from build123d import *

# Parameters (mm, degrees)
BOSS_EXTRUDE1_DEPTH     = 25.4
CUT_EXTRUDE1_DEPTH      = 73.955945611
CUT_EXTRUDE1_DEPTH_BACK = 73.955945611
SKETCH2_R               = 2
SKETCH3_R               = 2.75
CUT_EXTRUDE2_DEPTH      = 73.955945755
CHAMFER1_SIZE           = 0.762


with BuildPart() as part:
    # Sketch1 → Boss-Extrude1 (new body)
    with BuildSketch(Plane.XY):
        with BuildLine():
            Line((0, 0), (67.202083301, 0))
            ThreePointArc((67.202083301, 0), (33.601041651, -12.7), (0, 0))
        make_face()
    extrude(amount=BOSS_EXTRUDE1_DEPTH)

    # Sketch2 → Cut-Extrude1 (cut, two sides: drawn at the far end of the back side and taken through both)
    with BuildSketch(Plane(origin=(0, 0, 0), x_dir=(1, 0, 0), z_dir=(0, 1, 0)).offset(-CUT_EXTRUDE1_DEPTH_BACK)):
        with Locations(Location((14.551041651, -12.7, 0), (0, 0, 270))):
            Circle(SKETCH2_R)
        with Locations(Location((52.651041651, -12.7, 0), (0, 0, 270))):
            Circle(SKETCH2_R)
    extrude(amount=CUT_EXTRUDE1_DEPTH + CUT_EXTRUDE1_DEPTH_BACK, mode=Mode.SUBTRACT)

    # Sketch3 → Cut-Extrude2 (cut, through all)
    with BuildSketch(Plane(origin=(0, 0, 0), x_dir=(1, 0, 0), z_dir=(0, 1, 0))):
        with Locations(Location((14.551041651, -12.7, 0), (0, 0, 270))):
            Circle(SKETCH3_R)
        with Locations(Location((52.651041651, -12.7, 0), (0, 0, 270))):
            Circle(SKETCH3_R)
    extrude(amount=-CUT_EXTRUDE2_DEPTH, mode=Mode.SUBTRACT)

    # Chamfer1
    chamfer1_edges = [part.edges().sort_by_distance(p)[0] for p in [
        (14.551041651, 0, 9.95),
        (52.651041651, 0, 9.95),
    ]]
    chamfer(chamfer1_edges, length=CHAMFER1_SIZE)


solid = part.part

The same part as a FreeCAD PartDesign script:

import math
import FreeCAD as App
import Part
import Sketcher
Q = App.Units.Quantity


def edges_at(feature, points):
    """Names of the edges that pass closest to the given points."""
    edges = feature.Shape.Edges
    near = lambda p: min(range(len(edges)), key=lambda i: edges[i].distToShape(Part.Vertex(*p))[0])
    return sorted({f"Edge{near(p) + 1}" for p in points})

doc = App.newDocument("Part")
body = doc.addObject("PartDesign::Body", "Body")

sketch1 = body.newObject("Sketcher::SketchObject", "Sketch")
sketch1.AttachmentSupport = (doc.getObject("XY_Plane"), [""])
sketch1.MapMode = "FlatFace"
sketch1.addGeometry(Part.LineSegment(App.Vector(67, 0, 0), App.Vector(0, 0, 0)), False)
sketch1.addGeometry(Part.ArcOfCircle(Part.Circle(App.Vector(34, 38, 0), App.Vector(0, 0, 1), 51), math.radians(-131), math.radians(-49)), False)
sketch1.addConstraint(Sketcher.Constraint("Coincident", 0, 1, 1, 2))
sketch1.addConstraint(Sketcher.Constraint("Coincident", 1, 1, 0, 2))
sketch1.addConstraint(Sketcher.Constraint("Horizontal", 0))
sketch1.addConstraint(Sketcher.Constraint("Coincident", 1, 1, -1, 1))
sketch1.addConstraint(Sketcher.Constraint("Radius", 1, Q("2 in")))
sketch1.addConstraint(Sketcher.Constraint("DistanceY", -1, 1, 1, 3, Q("1.5 in")))
pad1 = body.newObject("PartDesign::Pad", "Pad")
pad1.Profile = sketch1
pad1.Length = Q("1 in")

sketch2 = body.newObject("Sketcher::SketchObject", "Sketch001")
sketch2.AttachmentSupport = (doc.getObject("XZ_Plane"), [""])
sketch2.MapMode = "FlatFace"
sketch2.addGeometry(Part.Circle(App.Vector(14.6, 12.7, 0), App.Vector(0, 0, 1), 2), False)
sketch2.addGeometry(Part.Circle(App.Vector(52.7, 12.7, 0), App.Vector(0, 0, 1), 2), False)
sketch2.addConstraint(Sketcher.Constraint("Equal", 0, 1))
sketch2.addConstraint(Sketcher.Constraint("Horizontal", 0, 3, 1, 3))
sketch2.addConstraint(Sketcher.Constraint("DistanceY", -1, 1, 0, 3, Q("0.5 in")))
sketch2.addConstraint(Sketcher.Constraint("DistanceX", 0, 3, 1, 3, Q("1.5 in")))
sketch2.addConstraint(Sketcher.Constraint("Diameter", 0, Q("4 mm")))
sketch2.addConstraint(Sketcher.Constraint("DistanceX", -1, 1, 0, 3, Q("14.551042 mm")))
pocket1 = body.newObject("PartDesign::Pocket", "Pocket")
pocket1.Profile = sketch2
pocket1.Type = "ThroughAll"
pocket1.Midplane = True

sketch3 = body.newObject("Sketcher::SketchObject", "Sketch002")
sketch3.AttachmentSupport = (doc.getObject("XZ_Plane"), [""])
sketch3.MapMode = "FlatFace"
sketch3.addGeometry(Part.Circle(App.Vector(14.6, 12.7, 0), App.Vector(0, 0, 1), 2.8), False)
sketch3.addGeometry(Part.Circle(App.Vector(52.7, 12.7, 0), App.Vector(0, 0, 1), 2.8), False)
sketch3.addConstraint(Sketcher.Constraint("Equal", 0, 1))
sketch3.addConstraint(Sketcher.Constraint("Horizontal", 0, 3, 1, 3))
sketch3.addConstraint(Sketcher.Constraint("DistanceY", -1, 1, 0, 3, Q("0.5 in")))
sketch3.addConstraint(Sketcher.Constraint("DistanceX", 0, 3, 1, 3, Q("1.5 in")))
sketch3.addConstraint(Sketcher.Constraint("Diameter", 0, Q("5.5 mm")))
sketch3.addConstraint(Sketcher.Constraint("DistanceX", -1, 1, 0, 3, Q("14.551042 mm")))
pocket2 = body.newObject("PartDesign::Pocket", "Pocket001")
pocket2.Profile = sketch3
pocket2.Type = "ThroughAll"
pocket2.Reversed = True
doc.recompute()

chamfer = body.newObject("PartDesign::Chamfer", "Chamfer")
chamfer.Base = (pocket2, edges_at(pocket2, [(14.551, 0, 9.95), (52.651, 0, 9.95)]))
chamfer.Size = Q("0.03 in")

doc.recompute()
